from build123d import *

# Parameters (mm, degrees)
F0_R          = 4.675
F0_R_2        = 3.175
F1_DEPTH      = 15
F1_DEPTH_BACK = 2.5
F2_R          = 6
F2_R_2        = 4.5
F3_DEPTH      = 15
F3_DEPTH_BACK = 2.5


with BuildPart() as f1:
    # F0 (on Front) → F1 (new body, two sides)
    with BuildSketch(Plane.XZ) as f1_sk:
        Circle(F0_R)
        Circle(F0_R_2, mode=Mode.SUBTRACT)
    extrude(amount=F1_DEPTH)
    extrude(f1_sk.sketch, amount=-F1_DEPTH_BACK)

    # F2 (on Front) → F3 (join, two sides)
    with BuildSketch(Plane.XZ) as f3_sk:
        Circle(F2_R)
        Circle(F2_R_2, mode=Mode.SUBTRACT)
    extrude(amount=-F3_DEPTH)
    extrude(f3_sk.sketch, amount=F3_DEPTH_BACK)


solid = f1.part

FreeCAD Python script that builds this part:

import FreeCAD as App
import Part
import Sketcher
from FreeCAD import Vector

doc = App.newDocument("Part")
params = doc.addObject("Spreadsheet::Sheet", "Params")
for row, (alias, value) in enumerate([
    ("sketch1_diameter", "9.35 mm"),
    ("sketch1_diameter2", "6.35 mm"),
    ("pad1_length", "15 mm"),
    ("pad1_length2", "2.5 mm"),
    ("sketch2_diameter", "12 mm"),
    ("sketch2_diameter2", "9 mm"),
    ("pad2_length", "15 mm"),
    ("pad2_length2", "2.5 mm"),
], start=1):
    params.set(f"A{row}", alias)
    params.set(f"B{row}", "=" + value)
    params.setAlias(f"B{row}", alias)

body = doc.addObject("PartDesign::Body", "Body")

sketch1 = body.newObject("Sketcher::SketchObject", "Sketch")
sketch1.AttachmentSupport = (doc.getObject("XZ_Plane"), [""])
sketch1.MapMode = "FlatFace"
sketch1.addGeometry(Part.Circle(Vector(0, 0, 0), Vector(0, 0, 1), 4.7), False)
sketch1.addGeometry(Part.Circle(Vector(0, 0, 0), Vector(0, 0, 1), 3.2), False)
sketch1.addConstraint(Sketcher.Constraint("Coincident", 0, 3, -1, 1))
sketch1.addConstraint(Sketcher.Constraint("Coincident", 1, 3, -1, 1))
sketch1.addConstraint(Sketcher.Constraint("Diameter", 0, 9.35))
sketch1.addConstraint(Sketcher.Constraint("Diameter", 1, 6.35))
sketch1.setExpression("Constraints[2]", "Params.sketch1_diameter")
sketch1.setExpression("Constraints[3]", "Params.sketch1_diameter2")
pad1 = body.newObject("PartDesign::Pad", "Pad")
pad1.Profile = sketch1
pad1.Type = "TwoLengths"
pad1.setExpression("Length", "Params.pad1_length")
pad1.setExpression("Length2", "Params.pad1_length2")

sketch2 = body.newObject("Sketcher::SketchObject", "Sketch001")
sketch2.AttachmentSupport = (doc.getObject("XZ_Plane"), [""])
sketch2.MapMode = "FlatFace"
sketch2.addGeometry(Part.Circle(Vector(0, 0, 0), Vector(0, 0, 1), 6), False)
sketch2.addGeometry(Part.Circle(Vector(0, 0, 0), Vector(0, 0, 1), 4.5), False)
sketch2.addConstraint(Sketcher.Constraint("Coincident", 0, 3, -1, 1))
sketch2.addConstraint(Sketcher.Constraint("Coincident", 1, 3, -1, 1))
sketch2.addConstraint(Sketcher.Constraint("Diameter", 0, 12.0))
sketch2.addConstraint(Sketcher.Constraint("Diameter", 1, 9.0))
sketch2.setExpression("Constraints[2]", "Params.sketch2_diameter")
sketch2.setExpression("Constraints[3]", "Params.sketch2_diameter2")
pad2 = body.newObject("PartDesign::Pad", "Pad001")
pad2.Profile = sketch2
pad2.Type = "TwoLengths"
pad2.setExpression("Length", "Params.pad2_length")
pad2.setExpression("Length2", "Params.pad2_length2")
pad2.Reversed = True

doc.recompute()
